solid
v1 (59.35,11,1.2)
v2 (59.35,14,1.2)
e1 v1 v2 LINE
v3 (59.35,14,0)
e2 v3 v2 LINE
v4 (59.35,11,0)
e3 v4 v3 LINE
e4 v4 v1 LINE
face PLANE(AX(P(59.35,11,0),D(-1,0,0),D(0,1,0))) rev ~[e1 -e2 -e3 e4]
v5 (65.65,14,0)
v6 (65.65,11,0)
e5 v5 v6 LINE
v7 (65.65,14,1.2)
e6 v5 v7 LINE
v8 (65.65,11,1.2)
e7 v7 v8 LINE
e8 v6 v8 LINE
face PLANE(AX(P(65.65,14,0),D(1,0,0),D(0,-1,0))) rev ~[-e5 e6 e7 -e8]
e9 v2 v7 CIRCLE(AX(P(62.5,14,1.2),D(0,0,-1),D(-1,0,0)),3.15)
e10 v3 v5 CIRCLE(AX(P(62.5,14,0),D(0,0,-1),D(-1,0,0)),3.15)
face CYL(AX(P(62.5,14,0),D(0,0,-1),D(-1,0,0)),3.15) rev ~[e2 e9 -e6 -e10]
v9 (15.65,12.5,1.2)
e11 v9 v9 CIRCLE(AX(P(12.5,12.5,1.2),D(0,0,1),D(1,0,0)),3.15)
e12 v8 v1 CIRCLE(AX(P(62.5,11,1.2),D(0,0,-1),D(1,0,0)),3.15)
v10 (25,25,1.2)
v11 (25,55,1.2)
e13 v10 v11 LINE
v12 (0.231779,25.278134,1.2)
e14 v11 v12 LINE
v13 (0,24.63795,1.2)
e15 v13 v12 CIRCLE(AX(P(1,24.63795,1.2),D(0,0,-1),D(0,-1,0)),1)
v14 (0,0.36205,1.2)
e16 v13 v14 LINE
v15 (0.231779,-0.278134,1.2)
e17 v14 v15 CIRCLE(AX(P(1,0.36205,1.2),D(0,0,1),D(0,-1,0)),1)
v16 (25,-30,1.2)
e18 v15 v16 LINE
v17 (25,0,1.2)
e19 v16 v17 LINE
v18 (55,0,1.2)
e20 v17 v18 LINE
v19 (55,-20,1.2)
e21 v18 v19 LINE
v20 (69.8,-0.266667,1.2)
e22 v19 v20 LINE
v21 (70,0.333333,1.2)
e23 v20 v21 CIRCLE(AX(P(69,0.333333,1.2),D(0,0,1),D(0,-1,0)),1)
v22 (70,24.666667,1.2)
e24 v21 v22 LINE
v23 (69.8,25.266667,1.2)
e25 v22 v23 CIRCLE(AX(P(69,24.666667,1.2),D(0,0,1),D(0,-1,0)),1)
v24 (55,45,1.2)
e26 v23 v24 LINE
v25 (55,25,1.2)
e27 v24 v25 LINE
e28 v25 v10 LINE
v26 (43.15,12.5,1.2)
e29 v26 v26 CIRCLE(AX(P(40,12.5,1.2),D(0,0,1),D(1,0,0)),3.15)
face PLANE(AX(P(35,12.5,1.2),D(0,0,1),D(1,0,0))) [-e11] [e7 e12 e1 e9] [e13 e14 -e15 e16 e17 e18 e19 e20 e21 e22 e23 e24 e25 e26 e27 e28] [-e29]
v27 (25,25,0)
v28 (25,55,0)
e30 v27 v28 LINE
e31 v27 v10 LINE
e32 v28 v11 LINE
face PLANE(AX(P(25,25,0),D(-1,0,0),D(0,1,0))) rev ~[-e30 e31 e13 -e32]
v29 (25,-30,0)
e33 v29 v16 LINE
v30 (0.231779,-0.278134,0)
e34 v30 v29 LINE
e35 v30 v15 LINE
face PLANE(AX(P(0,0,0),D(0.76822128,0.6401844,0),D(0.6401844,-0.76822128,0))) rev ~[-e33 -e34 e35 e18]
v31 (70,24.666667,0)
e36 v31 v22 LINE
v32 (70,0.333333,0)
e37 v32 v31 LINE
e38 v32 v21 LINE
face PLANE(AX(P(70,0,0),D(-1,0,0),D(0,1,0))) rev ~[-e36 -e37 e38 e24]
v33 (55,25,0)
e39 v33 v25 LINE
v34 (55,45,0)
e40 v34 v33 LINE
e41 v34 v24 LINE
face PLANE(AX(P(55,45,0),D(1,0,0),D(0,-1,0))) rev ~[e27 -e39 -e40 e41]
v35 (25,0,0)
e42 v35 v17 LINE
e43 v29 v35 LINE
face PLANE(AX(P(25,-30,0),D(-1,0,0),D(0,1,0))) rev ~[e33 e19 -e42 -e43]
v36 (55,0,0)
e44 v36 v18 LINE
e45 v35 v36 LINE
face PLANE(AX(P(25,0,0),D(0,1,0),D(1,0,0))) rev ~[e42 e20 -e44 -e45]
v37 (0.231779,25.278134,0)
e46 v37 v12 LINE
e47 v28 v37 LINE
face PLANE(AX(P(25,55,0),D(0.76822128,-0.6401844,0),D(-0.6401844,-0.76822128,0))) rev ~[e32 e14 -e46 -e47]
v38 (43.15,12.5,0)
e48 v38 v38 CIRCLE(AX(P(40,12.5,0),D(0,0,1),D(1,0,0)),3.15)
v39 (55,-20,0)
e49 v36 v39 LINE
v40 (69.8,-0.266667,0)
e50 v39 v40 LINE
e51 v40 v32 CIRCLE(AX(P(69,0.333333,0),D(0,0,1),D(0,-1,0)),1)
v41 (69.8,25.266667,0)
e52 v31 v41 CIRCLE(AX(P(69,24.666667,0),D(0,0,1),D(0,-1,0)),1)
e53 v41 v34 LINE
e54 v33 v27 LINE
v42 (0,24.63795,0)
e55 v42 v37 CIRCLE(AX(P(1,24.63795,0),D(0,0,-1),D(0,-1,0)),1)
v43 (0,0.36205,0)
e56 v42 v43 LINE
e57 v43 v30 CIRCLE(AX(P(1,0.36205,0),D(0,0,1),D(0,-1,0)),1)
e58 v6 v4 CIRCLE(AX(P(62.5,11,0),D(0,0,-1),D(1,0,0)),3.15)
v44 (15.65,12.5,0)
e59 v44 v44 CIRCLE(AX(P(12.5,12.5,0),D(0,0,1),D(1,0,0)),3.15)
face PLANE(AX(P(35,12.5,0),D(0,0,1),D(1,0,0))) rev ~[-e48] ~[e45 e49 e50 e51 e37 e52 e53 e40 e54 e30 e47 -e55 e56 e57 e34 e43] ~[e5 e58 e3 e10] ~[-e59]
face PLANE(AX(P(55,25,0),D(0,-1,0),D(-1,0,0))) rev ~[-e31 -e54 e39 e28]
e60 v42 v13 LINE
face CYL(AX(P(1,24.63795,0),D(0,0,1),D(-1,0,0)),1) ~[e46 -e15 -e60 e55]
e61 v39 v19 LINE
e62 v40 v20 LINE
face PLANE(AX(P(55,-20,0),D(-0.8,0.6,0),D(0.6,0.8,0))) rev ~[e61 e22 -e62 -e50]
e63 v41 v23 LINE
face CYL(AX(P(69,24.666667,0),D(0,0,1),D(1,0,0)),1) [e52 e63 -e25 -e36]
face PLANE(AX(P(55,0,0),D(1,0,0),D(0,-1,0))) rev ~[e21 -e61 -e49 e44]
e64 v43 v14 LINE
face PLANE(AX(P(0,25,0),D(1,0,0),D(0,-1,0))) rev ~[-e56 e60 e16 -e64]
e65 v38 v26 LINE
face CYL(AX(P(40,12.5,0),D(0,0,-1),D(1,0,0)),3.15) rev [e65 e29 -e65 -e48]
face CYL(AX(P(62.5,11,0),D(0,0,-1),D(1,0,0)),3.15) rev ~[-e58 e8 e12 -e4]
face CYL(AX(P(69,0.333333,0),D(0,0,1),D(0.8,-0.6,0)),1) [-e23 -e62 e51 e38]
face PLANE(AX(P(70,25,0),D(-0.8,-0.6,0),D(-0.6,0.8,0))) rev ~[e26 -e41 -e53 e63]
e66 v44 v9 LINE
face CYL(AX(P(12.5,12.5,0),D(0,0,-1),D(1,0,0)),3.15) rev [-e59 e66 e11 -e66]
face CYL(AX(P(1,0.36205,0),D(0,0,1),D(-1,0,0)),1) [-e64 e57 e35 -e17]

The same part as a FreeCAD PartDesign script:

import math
import FreeCAD as App
import Part
import Sketcher
Q = App.Units.Quantity


def edges_at(feature, points):
    """Names of the edges that pass closest to the given points."""
    edges = feature.Shape.Edges
    near = lambda p: min(range(len(edges)), key=lambda i: edges[i].distToShape(Part.Vertex(*p))[0])
    return sorted({f"Edge{near(p) + 1}" for p in points})


def add_polygon(sketch, points):
    """Adds a closed chain of lines whose ends are joined by coincident constraints."""
    first, n = sketch.GeometryCount, len(points)
    for a, b in zip(points, points[1:] + points[:1]):
        sketch.addGeometry(Part.LineSegment(App.Vector(*a, 0), App.Vector(*b, 0)), False)
    for i in range(n):
        sketch.addConstraint(Sketcher.Constraint("Coincident", first + i, 2, first + (i + 1) % n, 1))

doc = App.newDocument("Part")
body = doc.addObject("PartDesign::Body", "Body")

# Sketch on XY plane
sketch1 = body.newObject("Sketcher::SketchObject", "Sketch")
sketch1.AttachmentSupport = (doc.getObject("XY_Plane"), [""])
sketch1.MapMode = "FlatFace"
add_polygon(sketch1, [(0, 25), (0, 0), (25, -30), (25, 0), (55, 0), (55, -20), (70, 0), (70, 25), (55, 45), (55, 25), (25, 25), (25, 55)])  # lines 0-11
sketch1.addGeometry(Part.Circle(App.Vector(12.5, 12.5, 0), App.Vector(0, 0, 1), 3.1), False)  # 12
sketch1.addGeometry(Part.Circle(App.Vector(40, 12.5, 0), App.Vector(0, 0, 1), 3.1), False)  # 13
sketch1.addGeometry(Part.LineSegment(App.Vector(65.7, 14, 0), App.Vector(65.7, 11, 0)), False)  # 14
sketch1.addGeometry(Part.ArcOfCircle(Part.Circle(App.Vector(62.5, 11, 0), App.Vector(0, 0, 1), 3.1), math.radians(180), math.radians(360)), False)  # 15
sketch1.addGeometry(Part.LineSegment(App.Vector(59.4, 11, 0), App.Vector(59.4, 14, 0)), False)  # 16
sketch1.addGeometry(Part.ArcOfCircle(Part.Circle(App.Vector(62.5, 14, 0), App.Vector(0, 0, 1), 3.1), math.radians(0), math.radians(180)), False)  # 17
sketch1.addConstraint([
    Sketcher.Constraint("Tangent", 14, 2, 15, 2),
    Sketcher.Constraint("Tangent", 15, 1, 16, 1),
    Sketcher.Constraint("Tangent", 16, 2, 17, 2),
    Sketcher.Constraint("Tangent", 17, 1, 14, 1),
    Sketcher.Constraint("Vertical", 0),
    Sketcher.Constraint("Vertical", 2),
    Sketcher.Constraint("Horizontal", 3),
    Sketcher.Constraint("Vertical", 4),
    Sketcher.Constraint("Vertical", 6),
    Sketcher.Constraint("Vertical", 8),
    Sketcher.Constraint("Horizontal", 9),
    Sketcher.Constraint("Vertical", 10),
    Sketcher.Constraint("Vertical", 14),
    Sketcher.Constraint("Vertical", 16),
    Sketcher.Constraint("Coincident", 0, 2, -1, 1),
    Sketcher.Constraint("Equal", 12, 13),
    Sketcher.Constraint("Equal", 13, 15),
    Sketcher.Constraint("PointOnObject", 2, 2, -1),
    Sketcher.Constraint("PointOnObject", 5, 2, -1),
    Sketcher.Constraint("Horizontal", 12, 3, 13, 3),
    Sketcher.Constraint("Horizontal", 6, 2, 8, 2),
    Sketcher.Constraint("Horizontal", 9, 2, 11, 2),
    Sketcher.Constraint("Vertical", 4, 2, 7, 2),
    Sketcher.Constraint("Vertical", 2, 2, 9, 2),
    Sketcher.Constraint("Equal", 9, 2),
    Sketcher.Constraint("Equal", 4, 8),
    Sketcher.Constraint("Equal", 2, 10),
    Sketcher.Constraint("Diameter", 12, Q("6.3 mm")),
    Sketcher.Constraint("DistanceX", 3, 1, 3, 2, Q("30 mm")),
    Sketcher.Constraint("DistanceY", 0, 2, 0, 1, Q("25 mm")),
    Sketcher.Constraint("DistanceY", 4, 2, 4, 1, Q("20 mm")),
    Sketcher.Constraint("DistanceY", 14, 2, 14, 1, Q("3 mm")),
    Sketcher.Constraint("Distance", 5, Q("25 mm")),
    Sketcher.Constraint("DistanceX", -1, 1, 13, 3, Q("40 mm")),
    Sketcher.Constraint("DistanceY", -1, 1, 15, 3, Q("11 mm")),
    Sketcher.Constraint("DistanceX", -1, 1, 1, 2, Q("25 mm")),
    Sketcher.Constraint("DistanceX", 12, 3, 15, 3, Q("50 mm")),
    Sketcher.Constraint("DistanceX", -1, 1, 12, 3, Q("12.5 mm")),
    Sketcher.Constraint("DistanceY", -1, 1, 12, 3, Q("12.5 mm")),
])
pad1 = body.newObject("PartDesign::Pad", "Pad")
pad1.Profile = sketch1
pad1.Length = 1.2
doc.recompute()

fillet = body.newObject("PartDesign::Fillet", "Fillet")
fillet.Base = (pad1, edges_at(pad1, [
    (0, 25, 0.6),
    (0, 0, 0.6),
    (70, 0, 0.6),
    (70, 25, 0.6),
]))
fillet.Radius = 1

doc.recompute()
